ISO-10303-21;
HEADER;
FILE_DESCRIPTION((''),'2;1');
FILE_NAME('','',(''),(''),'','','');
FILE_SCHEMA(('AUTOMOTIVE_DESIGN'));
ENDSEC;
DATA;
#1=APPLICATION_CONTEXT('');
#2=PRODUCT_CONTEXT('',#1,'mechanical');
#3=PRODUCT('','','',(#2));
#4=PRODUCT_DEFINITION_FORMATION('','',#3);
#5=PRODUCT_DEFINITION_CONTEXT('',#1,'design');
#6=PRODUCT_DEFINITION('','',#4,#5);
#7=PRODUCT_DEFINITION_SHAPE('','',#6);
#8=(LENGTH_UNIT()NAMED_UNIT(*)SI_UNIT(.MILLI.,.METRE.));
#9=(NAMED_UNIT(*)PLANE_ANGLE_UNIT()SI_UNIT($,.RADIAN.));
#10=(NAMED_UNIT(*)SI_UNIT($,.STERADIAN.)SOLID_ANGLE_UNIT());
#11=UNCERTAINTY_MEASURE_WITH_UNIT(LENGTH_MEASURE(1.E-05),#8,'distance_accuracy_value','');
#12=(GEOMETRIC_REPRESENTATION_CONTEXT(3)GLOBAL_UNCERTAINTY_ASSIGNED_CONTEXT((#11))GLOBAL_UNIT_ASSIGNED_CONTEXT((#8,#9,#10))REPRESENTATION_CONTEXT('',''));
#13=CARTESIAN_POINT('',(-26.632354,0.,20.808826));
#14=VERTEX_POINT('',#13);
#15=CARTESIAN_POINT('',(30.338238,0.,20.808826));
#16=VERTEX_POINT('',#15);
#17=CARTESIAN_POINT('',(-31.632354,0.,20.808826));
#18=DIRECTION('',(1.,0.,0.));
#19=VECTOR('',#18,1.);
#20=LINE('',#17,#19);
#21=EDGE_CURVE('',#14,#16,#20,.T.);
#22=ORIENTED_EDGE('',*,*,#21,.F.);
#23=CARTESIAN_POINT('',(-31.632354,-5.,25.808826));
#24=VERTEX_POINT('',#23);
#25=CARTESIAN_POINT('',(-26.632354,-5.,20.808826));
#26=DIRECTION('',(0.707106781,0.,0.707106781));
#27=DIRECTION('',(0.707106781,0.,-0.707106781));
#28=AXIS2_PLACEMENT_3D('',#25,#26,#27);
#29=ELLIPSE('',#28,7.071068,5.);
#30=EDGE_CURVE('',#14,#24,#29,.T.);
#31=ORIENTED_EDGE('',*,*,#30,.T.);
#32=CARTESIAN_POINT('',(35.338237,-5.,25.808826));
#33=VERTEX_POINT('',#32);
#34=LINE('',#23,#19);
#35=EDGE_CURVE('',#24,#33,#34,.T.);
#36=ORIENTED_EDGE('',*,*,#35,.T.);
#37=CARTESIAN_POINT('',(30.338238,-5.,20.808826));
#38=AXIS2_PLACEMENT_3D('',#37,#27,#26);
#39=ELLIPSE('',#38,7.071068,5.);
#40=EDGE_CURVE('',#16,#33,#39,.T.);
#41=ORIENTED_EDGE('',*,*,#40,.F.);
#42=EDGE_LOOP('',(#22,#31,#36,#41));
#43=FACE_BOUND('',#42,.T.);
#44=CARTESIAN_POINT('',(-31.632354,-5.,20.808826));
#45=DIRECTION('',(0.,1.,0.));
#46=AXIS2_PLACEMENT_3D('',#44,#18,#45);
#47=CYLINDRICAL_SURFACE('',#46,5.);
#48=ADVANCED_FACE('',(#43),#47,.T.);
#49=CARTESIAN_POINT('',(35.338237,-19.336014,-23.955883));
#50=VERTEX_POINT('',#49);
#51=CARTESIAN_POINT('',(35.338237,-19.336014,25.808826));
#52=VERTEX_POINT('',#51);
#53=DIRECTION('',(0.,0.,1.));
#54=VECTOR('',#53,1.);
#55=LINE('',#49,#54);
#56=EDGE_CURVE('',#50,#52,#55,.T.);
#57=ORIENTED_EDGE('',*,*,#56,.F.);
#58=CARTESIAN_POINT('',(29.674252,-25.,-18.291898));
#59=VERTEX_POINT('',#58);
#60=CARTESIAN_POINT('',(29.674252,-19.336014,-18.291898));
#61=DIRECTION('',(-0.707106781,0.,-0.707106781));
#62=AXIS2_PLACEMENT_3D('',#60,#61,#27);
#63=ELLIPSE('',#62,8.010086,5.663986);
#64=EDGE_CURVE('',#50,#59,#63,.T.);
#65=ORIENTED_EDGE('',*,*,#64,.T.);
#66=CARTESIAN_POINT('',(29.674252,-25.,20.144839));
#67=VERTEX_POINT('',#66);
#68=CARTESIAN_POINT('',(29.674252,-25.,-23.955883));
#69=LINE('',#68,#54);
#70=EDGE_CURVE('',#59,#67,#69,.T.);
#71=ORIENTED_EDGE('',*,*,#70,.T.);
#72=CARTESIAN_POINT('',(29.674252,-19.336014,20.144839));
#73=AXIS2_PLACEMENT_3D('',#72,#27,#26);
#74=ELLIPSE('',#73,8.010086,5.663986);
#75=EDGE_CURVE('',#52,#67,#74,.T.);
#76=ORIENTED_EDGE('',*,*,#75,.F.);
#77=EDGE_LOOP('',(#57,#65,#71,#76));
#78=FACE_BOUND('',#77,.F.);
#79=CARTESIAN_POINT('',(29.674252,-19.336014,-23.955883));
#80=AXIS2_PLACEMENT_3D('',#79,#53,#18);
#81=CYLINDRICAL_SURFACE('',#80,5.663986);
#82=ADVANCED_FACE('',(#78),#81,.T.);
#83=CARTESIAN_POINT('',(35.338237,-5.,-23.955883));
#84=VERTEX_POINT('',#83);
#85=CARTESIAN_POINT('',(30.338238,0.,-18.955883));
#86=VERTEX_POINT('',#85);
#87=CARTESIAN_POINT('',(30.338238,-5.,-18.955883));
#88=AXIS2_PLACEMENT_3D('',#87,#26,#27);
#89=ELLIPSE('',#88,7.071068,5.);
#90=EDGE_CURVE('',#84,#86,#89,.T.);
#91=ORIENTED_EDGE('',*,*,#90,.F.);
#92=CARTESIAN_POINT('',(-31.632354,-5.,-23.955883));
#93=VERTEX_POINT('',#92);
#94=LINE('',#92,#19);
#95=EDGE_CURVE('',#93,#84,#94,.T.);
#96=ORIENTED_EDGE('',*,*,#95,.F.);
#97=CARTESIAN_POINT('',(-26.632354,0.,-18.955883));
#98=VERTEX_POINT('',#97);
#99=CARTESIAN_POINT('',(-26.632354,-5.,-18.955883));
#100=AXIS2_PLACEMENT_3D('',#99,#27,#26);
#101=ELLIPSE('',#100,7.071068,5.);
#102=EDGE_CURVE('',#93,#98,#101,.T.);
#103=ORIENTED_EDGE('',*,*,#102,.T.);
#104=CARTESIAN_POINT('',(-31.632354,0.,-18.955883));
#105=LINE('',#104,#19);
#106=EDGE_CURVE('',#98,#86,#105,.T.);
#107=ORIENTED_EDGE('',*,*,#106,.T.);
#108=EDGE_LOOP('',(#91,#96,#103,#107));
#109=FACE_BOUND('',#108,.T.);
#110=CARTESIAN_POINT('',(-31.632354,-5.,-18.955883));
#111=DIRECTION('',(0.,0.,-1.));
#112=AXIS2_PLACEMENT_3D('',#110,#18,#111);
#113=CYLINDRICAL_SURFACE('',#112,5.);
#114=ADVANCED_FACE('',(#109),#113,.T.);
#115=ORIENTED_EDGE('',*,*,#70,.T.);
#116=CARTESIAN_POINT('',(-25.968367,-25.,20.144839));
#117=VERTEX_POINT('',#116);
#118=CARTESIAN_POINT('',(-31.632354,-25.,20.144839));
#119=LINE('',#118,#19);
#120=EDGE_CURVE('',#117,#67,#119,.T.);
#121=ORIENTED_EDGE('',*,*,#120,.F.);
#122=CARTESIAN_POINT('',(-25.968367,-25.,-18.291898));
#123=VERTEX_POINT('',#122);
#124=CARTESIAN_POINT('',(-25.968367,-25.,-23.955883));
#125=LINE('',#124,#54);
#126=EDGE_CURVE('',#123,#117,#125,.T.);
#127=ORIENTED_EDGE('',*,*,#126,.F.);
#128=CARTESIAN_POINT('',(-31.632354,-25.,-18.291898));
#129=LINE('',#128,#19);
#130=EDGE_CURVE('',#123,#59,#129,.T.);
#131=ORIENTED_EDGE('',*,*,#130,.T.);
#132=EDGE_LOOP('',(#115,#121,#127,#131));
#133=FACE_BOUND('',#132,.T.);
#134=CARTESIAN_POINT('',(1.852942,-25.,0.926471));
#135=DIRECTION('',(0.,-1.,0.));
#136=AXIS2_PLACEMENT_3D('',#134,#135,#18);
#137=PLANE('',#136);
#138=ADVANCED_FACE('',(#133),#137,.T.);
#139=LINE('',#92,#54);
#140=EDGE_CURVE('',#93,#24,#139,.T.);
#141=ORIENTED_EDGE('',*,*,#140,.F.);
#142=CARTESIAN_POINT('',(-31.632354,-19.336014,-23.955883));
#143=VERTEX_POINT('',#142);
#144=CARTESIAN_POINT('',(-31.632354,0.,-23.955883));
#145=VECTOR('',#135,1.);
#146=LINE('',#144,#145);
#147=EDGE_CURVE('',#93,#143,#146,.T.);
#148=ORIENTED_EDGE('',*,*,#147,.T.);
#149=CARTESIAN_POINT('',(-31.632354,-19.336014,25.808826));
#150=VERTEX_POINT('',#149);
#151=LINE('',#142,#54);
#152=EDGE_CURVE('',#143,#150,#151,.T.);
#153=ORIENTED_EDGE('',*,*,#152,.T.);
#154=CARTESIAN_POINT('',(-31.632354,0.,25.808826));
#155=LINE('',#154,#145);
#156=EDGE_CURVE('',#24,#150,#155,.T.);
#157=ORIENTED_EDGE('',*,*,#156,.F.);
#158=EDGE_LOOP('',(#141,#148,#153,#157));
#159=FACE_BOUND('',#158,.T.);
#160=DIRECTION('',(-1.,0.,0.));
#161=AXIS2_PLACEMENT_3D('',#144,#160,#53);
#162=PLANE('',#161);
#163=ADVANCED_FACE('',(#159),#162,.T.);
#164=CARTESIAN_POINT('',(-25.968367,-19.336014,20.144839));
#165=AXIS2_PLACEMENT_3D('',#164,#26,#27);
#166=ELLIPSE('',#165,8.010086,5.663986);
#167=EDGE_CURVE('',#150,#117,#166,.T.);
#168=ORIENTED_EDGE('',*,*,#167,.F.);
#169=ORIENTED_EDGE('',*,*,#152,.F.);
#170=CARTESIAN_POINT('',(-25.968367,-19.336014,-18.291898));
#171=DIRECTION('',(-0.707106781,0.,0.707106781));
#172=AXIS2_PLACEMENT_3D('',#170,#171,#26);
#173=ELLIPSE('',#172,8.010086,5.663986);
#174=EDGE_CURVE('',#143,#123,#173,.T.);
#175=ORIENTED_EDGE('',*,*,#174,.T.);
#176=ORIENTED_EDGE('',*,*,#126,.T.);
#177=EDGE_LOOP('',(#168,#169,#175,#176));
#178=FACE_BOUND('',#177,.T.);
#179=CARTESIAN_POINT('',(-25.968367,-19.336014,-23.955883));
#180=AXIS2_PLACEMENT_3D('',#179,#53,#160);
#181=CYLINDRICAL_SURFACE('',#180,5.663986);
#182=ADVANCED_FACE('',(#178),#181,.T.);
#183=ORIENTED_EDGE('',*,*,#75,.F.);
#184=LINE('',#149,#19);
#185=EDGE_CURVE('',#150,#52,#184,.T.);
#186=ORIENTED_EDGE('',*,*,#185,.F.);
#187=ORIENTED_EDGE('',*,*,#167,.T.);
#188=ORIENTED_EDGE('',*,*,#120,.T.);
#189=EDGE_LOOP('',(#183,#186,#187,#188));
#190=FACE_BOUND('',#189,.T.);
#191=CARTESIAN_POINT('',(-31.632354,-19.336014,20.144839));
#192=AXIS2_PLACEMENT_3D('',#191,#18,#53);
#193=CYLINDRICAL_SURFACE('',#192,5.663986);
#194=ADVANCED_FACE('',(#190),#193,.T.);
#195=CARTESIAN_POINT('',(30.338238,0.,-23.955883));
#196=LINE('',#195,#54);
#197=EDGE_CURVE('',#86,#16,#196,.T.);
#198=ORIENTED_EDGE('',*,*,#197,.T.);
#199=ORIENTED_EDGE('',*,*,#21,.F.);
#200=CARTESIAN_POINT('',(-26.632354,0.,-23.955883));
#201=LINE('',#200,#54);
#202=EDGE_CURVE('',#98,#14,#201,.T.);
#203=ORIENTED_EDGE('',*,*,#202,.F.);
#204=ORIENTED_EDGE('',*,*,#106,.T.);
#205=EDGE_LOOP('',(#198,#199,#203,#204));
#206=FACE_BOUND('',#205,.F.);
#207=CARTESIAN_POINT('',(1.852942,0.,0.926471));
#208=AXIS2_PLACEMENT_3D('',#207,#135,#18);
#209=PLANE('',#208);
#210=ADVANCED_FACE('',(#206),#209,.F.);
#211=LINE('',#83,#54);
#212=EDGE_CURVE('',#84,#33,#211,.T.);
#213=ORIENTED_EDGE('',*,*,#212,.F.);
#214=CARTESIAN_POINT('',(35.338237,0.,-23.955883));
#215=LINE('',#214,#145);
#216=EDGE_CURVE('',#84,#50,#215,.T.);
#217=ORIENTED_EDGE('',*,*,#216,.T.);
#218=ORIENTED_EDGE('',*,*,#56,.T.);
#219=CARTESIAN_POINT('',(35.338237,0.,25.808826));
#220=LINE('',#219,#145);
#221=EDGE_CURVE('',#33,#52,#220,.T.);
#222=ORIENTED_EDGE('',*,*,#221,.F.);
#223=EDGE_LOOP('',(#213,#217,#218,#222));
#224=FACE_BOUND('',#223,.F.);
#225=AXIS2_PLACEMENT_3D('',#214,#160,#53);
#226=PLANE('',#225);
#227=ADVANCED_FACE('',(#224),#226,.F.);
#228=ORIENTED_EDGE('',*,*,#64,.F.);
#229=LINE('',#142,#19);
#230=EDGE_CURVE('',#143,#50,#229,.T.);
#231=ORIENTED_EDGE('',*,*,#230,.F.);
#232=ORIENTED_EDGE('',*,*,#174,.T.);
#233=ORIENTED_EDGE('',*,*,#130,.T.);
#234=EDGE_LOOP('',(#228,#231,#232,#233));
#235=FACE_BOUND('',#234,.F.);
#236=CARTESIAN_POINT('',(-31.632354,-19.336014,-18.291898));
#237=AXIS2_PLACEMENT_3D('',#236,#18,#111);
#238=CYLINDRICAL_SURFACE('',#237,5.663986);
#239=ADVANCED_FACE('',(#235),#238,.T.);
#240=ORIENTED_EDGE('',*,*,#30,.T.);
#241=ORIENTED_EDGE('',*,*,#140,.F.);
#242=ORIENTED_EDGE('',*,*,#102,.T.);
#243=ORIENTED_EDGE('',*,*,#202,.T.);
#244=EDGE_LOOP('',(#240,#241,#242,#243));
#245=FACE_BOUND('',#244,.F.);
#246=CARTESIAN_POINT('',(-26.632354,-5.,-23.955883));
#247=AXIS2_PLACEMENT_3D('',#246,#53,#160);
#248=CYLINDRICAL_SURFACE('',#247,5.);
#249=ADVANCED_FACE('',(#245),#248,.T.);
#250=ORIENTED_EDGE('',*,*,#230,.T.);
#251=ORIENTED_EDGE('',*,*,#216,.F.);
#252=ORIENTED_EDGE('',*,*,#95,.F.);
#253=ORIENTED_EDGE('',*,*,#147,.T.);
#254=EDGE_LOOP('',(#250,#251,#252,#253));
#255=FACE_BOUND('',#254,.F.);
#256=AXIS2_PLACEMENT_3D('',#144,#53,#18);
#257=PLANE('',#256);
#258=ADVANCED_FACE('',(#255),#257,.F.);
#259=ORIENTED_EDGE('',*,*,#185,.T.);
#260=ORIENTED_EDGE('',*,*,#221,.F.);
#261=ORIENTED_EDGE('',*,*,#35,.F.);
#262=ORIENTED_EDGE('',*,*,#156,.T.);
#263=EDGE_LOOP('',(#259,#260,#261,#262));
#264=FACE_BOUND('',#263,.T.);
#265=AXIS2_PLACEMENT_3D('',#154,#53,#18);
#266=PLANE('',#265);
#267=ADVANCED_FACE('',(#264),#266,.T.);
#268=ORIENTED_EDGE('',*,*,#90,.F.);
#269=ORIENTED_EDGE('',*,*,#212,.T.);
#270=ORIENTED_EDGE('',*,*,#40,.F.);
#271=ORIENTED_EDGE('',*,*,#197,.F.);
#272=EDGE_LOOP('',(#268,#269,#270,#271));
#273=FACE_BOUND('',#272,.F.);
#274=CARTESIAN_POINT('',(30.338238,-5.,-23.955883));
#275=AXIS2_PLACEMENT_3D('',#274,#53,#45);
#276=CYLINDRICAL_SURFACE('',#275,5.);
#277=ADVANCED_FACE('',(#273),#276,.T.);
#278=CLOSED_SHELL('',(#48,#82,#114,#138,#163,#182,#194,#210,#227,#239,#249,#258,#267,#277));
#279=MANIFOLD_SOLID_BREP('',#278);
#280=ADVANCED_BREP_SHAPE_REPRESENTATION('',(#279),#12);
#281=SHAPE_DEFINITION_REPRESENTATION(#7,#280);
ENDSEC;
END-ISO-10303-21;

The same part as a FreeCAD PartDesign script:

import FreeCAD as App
import Part
import Sketcher

V = App.Vector


def edges_at(feature, points):
    """Names of the edges that pass closest to the given points."""
    edges = feature.Shape.Edges
    near = lambda p: min(range(len(edges)), key=lambda i: edges[i].distToShape(Part.Vertex(*p))[0])
    return sorted({f"Edge{near(p) + 1}" for p in points})

doc = App.newDocument("Part")
body = doc.addObject("PartDesign::Body", "Body")

sketch1 = body.newObject("Sketcher::SketchObject", "Sketch")
sketch1.AttachmentSupport = (doc.getObject("XZ_Plane"), [""])
sketch1.MapMode = "FlatFace"
sketch1.addGeometry(Part.LineSegment(V(-32, 26, 0), V(-32, -24, 0)), False)
sketch1.addGeometry(Part.LineSegment(V(-32, -24, 0), V(35, -24, 0)), False)
sketch1.addGeometry(Part.LineSegment(V(35, -24, 0), V(35, 26, 0)), False)
sketch1.addGeometry(Part.LineSegment(V(35, 26, 0), V(-32, 26, 0)), False)
sketch1.addConstraint(Sketcher.Constraint("Coincident", 0, 2, 1, 1))
sketch1.addConstraint(Sketcher.Constraint("Coincident", 1, 2, 2, 1))
sketch1.addConstraint(Sketcher.Constraint("Coincident", 2, 2, 3, 1))
sketch1.addConstraint(Sketcher.Constraint("Coincident", 3, 2, 0, 1))
sketch1.addConstraint(Sketcher.Constraint("Vertical", 0))
sketch1.addConstraint(Sketcher.Constraint("Horizontal", 1))
sketch1.addConstraint(Sketcher.Constraint("Vertical", 2))
sketch1.addConstraint(Sketcher.Constraint("Horizontal", 3))
sketch1.addConstraint(Sketcher.Constraint("DistanceX", 1, 1, 1, 2, 66.970591))
sketch1.addConstraint(Sketcher.Constraint("DistanceY", 0, 2, 0, 1, 49.764709))
sketch1.addConstraint(Sketcher.Constraint("DistanceX", 0, 2, -1, 1, 31.632354))
sketch1.addConstraint(Sketcher.Constraint("DistanceY", 0, 2, -1, 1, 23.955883))
pad1 = body.newObject("PartDesign::Pad", "Pad")
pad1.Profile = sketch1
pad1.Length = 25
doc.recompute()

fillet = body.newObject("PartDesign::Fillet", "Fillet")
fillet.Base = (pad1, edges_at(pad1, [
    (1.853, -25, 25.809),
    (-31.632, -25, 0.926),
    (1.853, -25, -23.956),
    (35.338, -25, 0.926),
]))
fillet.Radius = 5.663986
doc.recompute()

fillet2 = body.newObject("PartDesign::Fillet", "Fillet001")
fillet2.Base = (fillet, edges_at(fillet, [
    (1.853, 0, 25.809),
    (-31.632, 0, 0.926),
    (1.853, 0, -23.956),
    (35.338, 0, 0.926),
]))
fillet2.Radius = 5

doc.recompute()
